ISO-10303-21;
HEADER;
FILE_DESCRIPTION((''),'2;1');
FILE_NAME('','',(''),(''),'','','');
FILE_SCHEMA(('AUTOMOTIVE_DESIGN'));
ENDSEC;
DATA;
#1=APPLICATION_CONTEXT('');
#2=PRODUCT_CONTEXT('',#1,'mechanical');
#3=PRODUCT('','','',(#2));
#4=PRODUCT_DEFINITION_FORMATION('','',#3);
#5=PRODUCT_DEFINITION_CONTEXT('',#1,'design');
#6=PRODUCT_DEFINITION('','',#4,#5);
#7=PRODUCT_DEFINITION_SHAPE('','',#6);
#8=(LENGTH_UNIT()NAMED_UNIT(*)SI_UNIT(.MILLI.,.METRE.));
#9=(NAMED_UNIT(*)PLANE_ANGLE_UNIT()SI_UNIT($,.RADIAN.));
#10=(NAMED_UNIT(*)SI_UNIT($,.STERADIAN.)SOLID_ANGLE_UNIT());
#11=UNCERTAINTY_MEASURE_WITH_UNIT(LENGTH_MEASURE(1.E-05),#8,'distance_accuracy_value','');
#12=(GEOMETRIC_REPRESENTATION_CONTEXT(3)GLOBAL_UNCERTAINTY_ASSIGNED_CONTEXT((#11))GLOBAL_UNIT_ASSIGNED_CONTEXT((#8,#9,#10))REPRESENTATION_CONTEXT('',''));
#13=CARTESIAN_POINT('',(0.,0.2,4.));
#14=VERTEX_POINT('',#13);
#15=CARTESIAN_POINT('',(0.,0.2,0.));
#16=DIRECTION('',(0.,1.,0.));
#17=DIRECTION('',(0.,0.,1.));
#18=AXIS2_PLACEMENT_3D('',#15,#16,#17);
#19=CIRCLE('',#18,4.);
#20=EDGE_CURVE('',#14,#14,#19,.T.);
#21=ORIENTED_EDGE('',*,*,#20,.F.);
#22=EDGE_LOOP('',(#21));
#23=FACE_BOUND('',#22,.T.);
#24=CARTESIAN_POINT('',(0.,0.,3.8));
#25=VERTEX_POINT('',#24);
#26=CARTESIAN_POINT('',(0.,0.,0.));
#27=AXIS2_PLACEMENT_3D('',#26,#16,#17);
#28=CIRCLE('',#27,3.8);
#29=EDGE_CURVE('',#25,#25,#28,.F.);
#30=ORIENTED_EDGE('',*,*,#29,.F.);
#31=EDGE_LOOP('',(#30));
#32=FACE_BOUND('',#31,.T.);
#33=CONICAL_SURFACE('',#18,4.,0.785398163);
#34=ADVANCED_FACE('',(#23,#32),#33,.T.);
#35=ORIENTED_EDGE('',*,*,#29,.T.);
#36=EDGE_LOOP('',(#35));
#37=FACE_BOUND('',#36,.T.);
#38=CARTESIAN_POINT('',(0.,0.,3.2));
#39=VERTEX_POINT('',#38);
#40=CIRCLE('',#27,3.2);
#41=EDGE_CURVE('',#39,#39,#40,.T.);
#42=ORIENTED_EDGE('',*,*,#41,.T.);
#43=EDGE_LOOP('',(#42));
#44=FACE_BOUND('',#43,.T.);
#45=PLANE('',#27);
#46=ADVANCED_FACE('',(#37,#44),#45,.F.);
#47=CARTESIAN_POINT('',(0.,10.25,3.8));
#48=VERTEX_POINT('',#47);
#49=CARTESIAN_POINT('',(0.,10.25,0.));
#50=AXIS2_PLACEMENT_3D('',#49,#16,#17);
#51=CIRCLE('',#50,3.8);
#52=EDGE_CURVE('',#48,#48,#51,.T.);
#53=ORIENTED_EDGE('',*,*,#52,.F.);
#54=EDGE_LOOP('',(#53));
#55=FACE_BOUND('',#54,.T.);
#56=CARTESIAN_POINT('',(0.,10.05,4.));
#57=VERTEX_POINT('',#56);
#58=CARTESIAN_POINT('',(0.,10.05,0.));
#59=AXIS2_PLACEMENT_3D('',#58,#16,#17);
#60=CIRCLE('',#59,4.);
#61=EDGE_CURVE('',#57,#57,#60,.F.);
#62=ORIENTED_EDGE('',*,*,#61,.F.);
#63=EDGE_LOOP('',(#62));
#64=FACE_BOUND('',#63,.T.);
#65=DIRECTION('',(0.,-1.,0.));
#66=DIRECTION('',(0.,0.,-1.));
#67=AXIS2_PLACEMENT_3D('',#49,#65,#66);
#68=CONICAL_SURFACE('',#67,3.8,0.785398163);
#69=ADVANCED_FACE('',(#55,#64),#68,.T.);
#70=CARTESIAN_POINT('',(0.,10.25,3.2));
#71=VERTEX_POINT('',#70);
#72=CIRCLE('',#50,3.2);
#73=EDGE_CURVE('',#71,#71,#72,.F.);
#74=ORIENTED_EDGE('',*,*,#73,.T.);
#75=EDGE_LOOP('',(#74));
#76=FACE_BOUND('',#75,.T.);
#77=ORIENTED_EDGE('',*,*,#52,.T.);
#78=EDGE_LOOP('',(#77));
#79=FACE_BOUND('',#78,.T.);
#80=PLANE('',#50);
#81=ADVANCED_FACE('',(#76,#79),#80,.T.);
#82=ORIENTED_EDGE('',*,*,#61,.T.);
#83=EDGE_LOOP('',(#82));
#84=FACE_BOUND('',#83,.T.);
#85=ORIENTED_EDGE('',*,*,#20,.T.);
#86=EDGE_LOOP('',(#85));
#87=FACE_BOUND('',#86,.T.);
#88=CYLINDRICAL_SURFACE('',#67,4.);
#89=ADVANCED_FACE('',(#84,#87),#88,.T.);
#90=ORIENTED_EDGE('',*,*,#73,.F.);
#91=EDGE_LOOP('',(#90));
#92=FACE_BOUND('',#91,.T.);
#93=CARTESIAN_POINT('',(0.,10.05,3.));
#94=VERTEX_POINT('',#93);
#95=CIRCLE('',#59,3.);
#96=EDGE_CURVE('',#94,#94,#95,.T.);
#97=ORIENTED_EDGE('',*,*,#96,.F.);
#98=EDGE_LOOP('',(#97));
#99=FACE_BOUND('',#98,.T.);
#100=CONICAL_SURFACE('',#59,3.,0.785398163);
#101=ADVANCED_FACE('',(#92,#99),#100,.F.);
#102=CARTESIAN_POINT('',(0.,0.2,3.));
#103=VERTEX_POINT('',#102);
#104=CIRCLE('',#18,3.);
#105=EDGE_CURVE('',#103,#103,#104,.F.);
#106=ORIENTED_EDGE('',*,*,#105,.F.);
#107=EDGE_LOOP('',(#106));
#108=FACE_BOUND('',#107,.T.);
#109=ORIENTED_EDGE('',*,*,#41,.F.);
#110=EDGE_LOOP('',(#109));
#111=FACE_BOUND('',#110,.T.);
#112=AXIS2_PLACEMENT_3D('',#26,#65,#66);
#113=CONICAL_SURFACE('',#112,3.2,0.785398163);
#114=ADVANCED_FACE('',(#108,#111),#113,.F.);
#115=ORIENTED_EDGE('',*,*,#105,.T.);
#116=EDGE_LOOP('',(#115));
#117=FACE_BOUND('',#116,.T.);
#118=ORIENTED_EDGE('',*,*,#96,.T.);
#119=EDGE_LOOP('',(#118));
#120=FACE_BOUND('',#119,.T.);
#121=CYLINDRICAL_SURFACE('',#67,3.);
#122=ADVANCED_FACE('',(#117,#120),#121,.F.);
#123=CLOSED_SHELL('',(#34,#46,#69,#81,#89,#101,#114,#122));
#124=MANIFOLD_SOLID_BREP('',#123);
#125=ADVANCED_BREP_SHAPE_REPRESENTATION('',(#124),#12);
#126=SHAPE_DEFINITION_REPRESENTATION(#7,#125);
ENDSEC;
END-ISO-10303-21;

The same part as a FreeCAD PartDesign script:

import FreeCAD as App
import Part
import Sketcher

V = App.Vector
Q = App.Units.Quantity


def edges_at(feature, points):
    """Names of the edges that pass closest to the given points."""
    edges = feature.Shape.Edges
    near = lambda p: min(range(len(edges)), key=lambda i: edges[i].distToShape(Part.Vertex(*p))[0])
    return sorted({f"Edge{near(p) + 1}" for p in points})

doc = App.newDocument("Part")
body = doc.addObject("PartDesign::Body", "Body")

sketch1 = body.newObject("Sketcher::SketchObject", "Sketch")
sketch1.AttachmentSupport = (doc.getObject("XZ_Plane"), [""])
sketch1.MapMode = "FlatFace"
sketch1.addGeometry(Part.Circle(V(0, 0, 0), V(0, 0, 1), 4), False)
sketch1.addGeometry(Part.Circle(V(0, 0, 0), V(0, 0, 1), 3), False)
sketch1.addConstraint(Sketcher.Constraint("Coincident", 0, 3, -1, 1))
sketch1.addConstraint(Sketcher.Constraint("Coincident", 1, 3, -1, 1))
sketch1.addConstraint(Sketcher.Constraint("Diameter", 0, Q("8 mm")))
sketch1.addConstraint(Sketcher.Constraint("Diameter", 1, Q("6 mm")))
pad1 = body.newObject("PartDesign::Pad", "Pad")
pad1.Profile = sketch1
pad1.Length = 10.25
pad1.Reversed = True
doc.recompute()

chamfer = body.newObject("PartDesign::Chamfer", "Chamfer")
chamfer.Base = (pad1, edges_at(pad1, [
    (0, 0, -4),
    (0, 10.25, -4),
    (0, 0, -3),
    (0, 10.25, -3),
]))
chamfer.Size = 0.2

doc.recompute()
